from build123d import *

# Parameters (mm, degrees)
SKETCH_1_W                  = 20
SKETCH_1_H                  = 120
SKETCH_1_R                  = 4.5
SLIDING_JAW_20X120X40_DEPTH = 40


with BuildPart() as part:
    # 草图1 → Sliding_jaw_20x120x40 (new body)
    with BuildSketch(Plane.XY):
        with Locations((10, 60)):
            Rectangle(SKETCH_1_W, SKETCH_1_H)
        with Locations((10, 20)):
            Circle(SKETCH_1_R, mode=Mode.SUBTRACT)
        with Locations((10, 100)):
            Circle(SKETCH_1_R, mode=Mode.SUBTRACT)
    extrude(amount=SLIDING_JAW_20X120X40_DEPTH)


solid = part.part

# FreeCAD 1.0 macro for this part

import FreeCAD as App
import Part
import Sketcher
Q = App.Units.Quantity


def add_polygon(sketch, points):
    """Adds a closed chain of lines whose ends are joined by coincident constraints."""
    first, n = sketch.GeometryCount, len(points)
    for a, b in zip(points, points[1:] + points[:1]):
        sketch.addGeometry(Part.LineSegment(App.Vector(*a, 0), App.Vector(*b, 0)), False)
    for i in range(n):
        sketch.addConstraint(Sketcher.Constraint("Coincident", first + i, 2, first + (i + 1) % n, 1))

doc = App.newDocument("Part")
body = doc.addObject("PartDesign::Body", "Body")

# Sketch on XY plane
sketch1 = doc.addObject("Sketcher::SketchObject", "Sketch")
body.addObject(sketch1)
sketch1.AttachmentSupport = (doc.XY_Plane, [""])
sketch1.MapMode = "FlatFace"
add_polygon(sketch1, [(0, 120), (0, 0), (20, 0), (20, 120)])  # lines 0-3
sketch1.addGeometry(Part.Circle(App.Vector(10, 20, 0), App.Vector(0, 0, 1), 4.5), False)  # 4
sketch1.addGeometry(Part.Circle(App.Vector(10, 100, 0), App.Vector(0, 0, 1), 4.5), False)  # 5
sketch1.addConstraint(Sketcher.Constraint("Vertical", 0))
sketch1.addConstraint(Sketcher.Constraint("Horizontal", 1))
sketch1.addConstraint(Sketcher.Constraint("Vertical", 2))
sketch1.addConstraint(Sketcher.Constraint("Horizontal", 3))
sketch1.addConstraint(Sketcher.Constraint("Coincident", 0, 2, -1, 1))
sketch1.addConstraint(Sketcher.Constraint("Equal", 4, 5))
sketch1.addConstraint(Sketcher.Constraint("Vertical", 4, 3, 5, 3))
sketch1.addConstraint(Sketcher.Constraint("Diameter", 4, Q("9 mm")))
sketch1.addConstraint(Sketcher.Constraint("DistanceX", 1, 1, 1, 2, Q("20 mm")))
sketch1.addConstraint(Sketcher.Constraint("DistanceY", 0, 2, 0, 1, Q("120 mm")))
sketch1.addConstraint(Sketcher.Constraint("DistanceX", -1, 1, 4, 3, Q("10 mm")))
sketch1.addConstraint(Sketcher.Constraint("DistanceY", -1, 1, 4, 3, Q("20 mm")))
sketch1.addConstraint(Sketcher.Constraint("DistanceY", -1, 1, 5, 3, Q("100 mm")))
pad1 = doc.addObject("PartDesign::Pad", "Pad")
body.addObject(pad1)
pad1.Profile = sketch1
pad1.Length = 40

doc.recompute()
